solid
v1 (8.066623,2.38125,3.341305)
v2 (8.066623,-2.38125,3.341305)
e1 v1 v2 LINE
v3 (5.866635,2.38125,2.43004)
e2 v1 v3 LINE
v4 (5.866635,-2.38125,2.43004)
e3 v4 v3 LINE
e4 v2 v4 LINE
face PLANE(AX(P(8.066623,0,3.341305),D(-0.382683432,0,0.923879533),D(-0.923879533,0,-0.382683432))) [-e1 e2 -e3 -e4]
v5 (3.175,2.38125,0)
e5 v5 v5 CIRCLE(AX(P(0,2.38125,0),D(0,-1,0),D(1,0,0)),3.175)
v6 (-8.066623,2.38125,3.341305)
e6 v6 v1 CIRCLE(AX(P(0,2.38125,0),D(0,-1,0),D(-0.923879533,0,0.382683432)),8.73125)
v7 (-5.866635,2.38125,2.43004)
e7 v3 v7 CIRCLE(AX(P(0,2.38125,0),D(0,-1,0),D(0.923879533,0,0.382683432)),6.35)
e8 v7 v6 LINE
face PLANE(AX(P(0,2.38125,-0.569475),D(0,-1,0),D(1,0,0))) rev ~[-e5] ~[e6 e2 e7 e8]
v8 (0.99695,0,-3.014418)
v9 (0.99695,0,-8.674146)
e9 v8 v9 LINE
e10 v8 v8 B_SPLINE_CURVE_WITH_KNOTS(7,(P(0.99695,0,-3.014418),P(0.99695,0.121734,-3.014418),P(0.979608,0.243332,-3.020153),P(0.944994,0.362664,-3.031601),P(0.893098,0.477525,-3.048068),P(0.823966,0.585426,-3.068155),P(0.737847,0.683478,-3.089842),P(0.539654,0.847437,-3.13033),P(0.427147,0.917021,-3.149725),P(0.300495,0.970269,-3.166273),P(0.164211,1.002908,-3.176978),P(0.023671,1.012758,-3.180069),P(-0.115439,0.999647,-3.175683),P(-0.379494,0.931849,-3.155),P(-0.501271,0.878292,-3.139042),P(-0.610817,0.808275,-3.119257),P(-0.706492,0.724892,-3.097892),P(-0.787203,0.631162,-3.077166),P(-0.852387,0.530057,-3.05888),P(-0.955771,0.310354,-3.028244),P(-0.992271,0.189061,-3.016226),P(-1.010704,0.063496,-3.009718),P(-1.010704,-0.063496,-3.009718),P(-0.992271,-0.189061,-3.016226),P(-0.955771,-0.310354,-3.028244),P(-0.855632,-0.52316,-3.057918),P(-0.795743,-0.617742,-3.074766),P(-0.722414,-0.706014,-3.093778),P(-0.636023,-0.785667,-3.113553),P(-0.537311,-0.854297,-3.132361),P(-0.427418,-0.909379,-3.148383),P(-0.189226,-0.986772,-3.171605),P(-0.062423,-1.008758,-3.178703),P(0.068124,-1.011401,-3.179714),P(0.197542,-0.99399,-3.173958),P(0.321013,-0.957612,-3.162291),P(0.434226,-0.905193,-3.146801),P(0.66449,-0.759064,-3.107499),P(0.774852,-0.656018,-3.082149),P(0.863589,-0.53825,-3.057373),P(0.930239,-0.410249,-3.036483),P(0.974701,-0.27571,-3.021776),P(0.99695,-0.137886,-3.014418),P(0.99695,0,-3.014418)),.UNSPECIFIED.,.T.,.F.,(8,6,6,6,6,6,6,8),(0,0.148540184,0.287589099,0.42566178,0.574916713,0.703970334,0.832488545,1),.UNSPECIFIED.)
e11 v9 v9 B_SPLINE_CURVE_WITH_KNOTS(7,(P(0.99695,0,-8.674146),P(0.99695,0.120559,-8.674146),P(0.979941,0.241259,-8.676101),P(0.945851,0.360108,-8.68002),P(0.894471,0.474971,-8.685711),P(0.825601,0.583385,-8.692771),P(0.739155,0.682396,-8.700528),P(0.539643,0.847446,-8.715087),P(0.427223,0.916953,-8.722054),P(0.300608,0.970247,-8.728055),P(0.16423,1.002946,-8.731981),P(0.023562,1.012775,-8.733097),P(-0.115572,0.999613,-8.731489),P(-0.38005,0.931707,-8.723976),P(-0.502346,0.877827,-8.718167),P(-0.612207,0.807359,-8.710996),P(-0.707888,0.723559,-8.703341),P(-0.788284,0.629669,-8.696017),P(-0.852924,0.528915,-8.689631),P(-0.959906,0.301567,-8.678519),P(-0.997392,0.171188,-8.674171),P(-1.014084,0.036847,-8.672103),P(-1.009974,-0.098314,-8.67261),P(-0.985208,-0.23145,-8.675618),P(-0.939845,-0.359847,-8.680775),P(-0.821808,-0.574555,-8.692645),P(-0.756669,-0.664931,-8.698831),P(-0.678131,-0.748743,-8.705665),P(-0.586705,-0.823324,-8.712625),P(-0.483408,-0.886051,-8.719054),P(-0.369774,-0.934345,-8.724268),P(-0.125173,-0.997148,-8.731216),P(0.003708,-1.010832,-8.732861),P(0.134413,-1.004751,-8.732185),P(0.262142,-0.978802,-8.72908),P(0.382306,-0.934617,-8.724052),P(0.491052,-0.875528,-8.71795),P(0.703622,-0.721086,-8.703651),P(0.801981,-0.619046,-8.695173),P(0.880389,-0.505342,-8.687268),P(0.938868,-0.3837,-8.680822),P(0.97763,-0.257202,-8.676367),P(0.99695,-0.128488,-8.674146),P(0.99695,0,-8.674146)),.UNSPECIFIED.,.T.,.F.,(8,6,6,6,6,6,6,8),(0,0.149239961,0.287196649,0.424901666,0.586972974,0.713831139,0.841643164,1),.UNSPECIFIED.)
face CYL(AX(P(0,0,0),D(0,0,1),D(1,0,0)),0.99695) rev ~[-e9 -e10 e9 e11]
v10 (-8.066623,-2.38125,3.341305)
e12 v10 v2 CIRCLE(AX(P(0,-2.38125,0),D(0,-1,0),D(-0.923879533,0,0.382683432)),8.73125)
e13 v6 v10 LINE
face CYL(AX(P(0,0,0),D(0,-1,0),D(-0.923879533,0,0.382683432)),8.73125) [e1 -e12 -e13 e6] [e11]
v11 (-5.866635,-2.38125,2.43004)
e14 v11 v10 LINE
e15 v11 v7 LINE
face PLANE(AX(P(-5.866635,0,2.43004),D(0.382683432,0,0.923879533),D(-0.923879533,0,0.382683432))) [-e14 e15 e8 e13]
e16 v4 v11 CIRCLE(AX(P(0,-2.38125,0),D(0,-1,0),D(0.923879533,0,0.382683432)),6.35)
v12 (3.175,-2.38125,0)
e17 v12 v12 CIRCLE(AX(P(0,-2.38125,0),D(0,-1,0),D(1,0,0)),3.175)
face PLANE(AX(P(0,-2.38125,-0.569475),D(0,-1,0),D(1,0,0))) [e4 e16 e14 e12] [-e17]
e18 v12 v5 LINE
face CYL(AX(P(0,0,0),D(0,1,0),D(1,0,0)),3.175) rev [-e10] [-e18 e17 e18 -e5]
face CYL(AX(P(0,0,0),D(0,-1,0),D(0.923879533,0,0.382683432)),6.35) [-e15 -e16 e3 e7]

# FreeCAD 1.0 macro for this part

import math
import FreeCAD as App
import Part
import Sketcher
from FreeCAD import Vector
Q = App.Units.Quantity

doc = App.newDocument("Part")
params = doc.addObject("Spreadsheet::Sheet", "Params")
for row, (alias, value) in enumerate([
    ("sketch1_diameter", "0.25 in"),
    ("sketch1_radius", "0.25 in"),
    ("sketch1_radius2", "0.34375 in"),
    ("pad1_length", "0.1875 in"),
], start=1):
    params.set(f"A{row}", alias)
    params.set(f"B{row}", "=" + value)
    params.setAlias(f"B{row}", alias)

body = doc.addObject("PartDesign::Body", "Body")

# Sketch on XZ plane
sketch1 = body.newObject("Sketcher::SketchObject", "Sketch")
sketch1.AttachmentSupport = (doc.getObject("XZ_Plane"), [""])
sketch1.MapMode = "FlatFace"
sketch1.addGeometry(Part.LineSegment(Vector(-5.9, 2.4, 0), Vector(-8.1, 3.3, 0)), False)
sketch1.addGeometry(Part.ArcOfCircle(Part.Circle(Vector(0, 0, 0), Vector(0, 0, 1), 8.7), math.radians(157), math.radians(383)), False)
sketch1.addGeometry(Part.LineSegment(Vector(8.1, 3.3, 0), Vector(5.9, 2.4, 0)), False)
sketch1.addGeometry(Part.ArcOfCircle(Part.Circle(Vector(0, 0, 0), Vector(0, 0, 1), 6.3), math.radians(22), math.radians(157)), False)
sketch1.addGeometry(Part.Circle(Vector(0, 0, 0), Vector(0, 0, 1), 3.2), False)
sketch1.addConstraint(Sketcher.Constraint("Coincident", 0, 2, 1, 1))
sketch1.addConstraint(Sketcher.Constraint("Coincident", 1, 2, 2, 1))
sketch1.addConstraint(Sketcher.Constraint("Coincident", 2, 2, 3, 1))
sketch1.addConstraint(Sketcher.Constraint("Coincident", 3, 2, 0, 1))
sketch1.addConstraint(Sketcher.Constraint("Coincident", 1, 3, -1, 1))
sketch1.addConstraint(Sketcher.Constraint("Coincident", 3, 3, -1, 1))
sketch1.addConstraint(Sketcher.Constraint("Coincident", 4, 3, -1, 1))
sketch1.addConstraint(Sketcher.Constraint("Horizontal", 0, 2, 1, 2))
sketch1.addConstraint(Sketcher.Constraint("Horizontal", 2, 2, 3, 2))
sketch1.addConstraint(Sketcher.Constraint("Diameter", 4, Q("0.25 in")))
sketch1.addConstraint(Sketcher.Constraint("Radius", 3, Q("0.25 in")))
sketch1.addConstraint(Sketcher.Constraint("Radius", 1, Q("0.34375 in")))
sketch1.addConstraint(Sketcher.Constraint("Angle", 0, Q("157.5 deg")))
sketch1.addConstraint(Sketcher.Constraint("DistanceY", -1, 1, 2, 2, 2.43004))
sketch1.setExpression("Constraints[9]", "Params.sketch1_diameter")
sketch1.setExpression("Constraints[10]", "Params.sketch1_radius")
sketch1.setExpression("Constraints[11]", "Params.sketch1_radius2")
pad1 = body.newObject("PartDesign::Pad", "Pad")
pad1.Profile = sketch1
pad1.setExpression("Length", "Params.pad1_length")
pad1.Midplane = True

# Sketch on XY plane
sketch2 = body.newObject("Sketcher::SketchObject", "Sketch001")
sketch2.AttachmentSupport = (doc.getObject("XY_Plane"), [""])
sketch2.MapMode = "FlatFace"
sketch2.addGeometry(Part.Circle(Vector(0, 0, 0), Vector(0, 0, 1), 1), False)
sketch2.addConstraint(Sketcher.Constraint("Coincident", 0, 3, -1, 1))
sketch2.addConstraint(Sketcher.Constraint("Diameter", 0, Q("0.0785 in")))
pocket1 = body.newObject("PartDesign::Pocket", "Pocket")
pocket1.Profile = sketch2
pocket1.Type = "ThroughAll"

doc.recompute()
